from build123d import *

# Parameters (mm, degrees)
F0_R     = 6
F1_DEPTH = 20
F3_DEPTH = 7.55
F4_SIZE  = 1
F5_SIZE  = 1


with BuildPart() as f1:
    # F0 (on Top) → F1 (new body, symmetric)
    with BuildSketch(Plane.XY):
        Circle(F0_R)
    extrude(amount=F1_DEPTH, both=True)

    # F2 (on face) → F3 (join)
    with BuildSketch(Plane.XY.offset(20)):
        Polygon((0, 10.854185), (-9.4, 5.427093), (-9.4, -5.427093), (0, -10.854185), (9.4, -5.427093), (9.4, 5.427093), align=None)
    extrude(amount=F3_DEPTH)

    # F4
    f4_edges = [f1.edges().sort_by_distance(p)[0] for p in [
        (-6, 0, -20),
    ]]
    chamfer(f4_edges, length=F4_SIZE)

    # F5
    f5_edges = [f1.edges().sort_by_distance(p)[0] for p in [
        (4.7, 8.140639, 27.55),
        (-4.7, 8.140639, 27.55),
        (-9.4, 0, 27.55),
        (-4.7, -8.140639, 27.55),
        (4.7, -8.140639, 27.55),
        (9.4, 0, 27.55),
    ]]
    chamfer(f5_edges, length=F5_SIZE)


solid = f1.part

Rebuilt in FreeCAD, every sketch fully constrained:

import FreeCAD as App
import Part
import Sketcher
from FreeCAD import Vector
Q = App.Units.Quantity


def edges_at(feature, points):
    """Names of the edges that pass closest to the given points."""
    edges = feature.Shape.Edges
    near = lambda p: min(range(len(edges)), key=lambda i: edges[i].distToShape(Part.Vertex(*p))[0])
    return sorted({f"Edge{near(p) + 1}" for p in points})


def add_polygon(sketch, points):
    """Adds a closed chain of lines whose ends are joined by coincident constraints."""
    first, n = sketch.GeometryCount, len(points)
    for a, b in zip(points, points[1:] + points[:1]):
        sketch.addGeometry(Part.LineSegment(App.Vector(*a, 0), App.Vector(*b, 0)), False)
    for i in range(n):
        sketch.addConstraint(Sketcher.Constraint("Coincident", first + i, 2, first + (i + 1) % n, 1))

doc = App.newDocument("Part")
body = doc.addObject("PartDesign::Body", "Body")

sketch1 = doc.addObject("Sketcher::SketchObject", "Sketch")
body.addObject(sketch1)
sketch1.AttachmentSupport = (doc.XY_Plane, [""])
sketch1.MapMode = "FlatFace"
sketch1.addGeometry(Part.Circle(Vector(0, 0, 0), Vector(0, 0, 1), 6), False)
sketch1.addConstraint([
    Sketcher.Constraint("Coincident", 0, 3, -1, 1),
    Sketcher.Constraint("Diameter", 0, Q("12 mm")),
])
pad1 = doc.addObject("PartDesign::Pad", "Pad")
body.addObject(pad1)
pad1.Profile = sketch1
pad1.Length = 40
pad1.Midplane = True

sketch2 = doc.addObject("Sketcher::SketchObject", "Sketch001")
body.addObject(sketch2)
sketch2.AttachmentSupport = (doc.XY_Plane, [""])
sketch2.MapMode = "FlatFace"
sketch2.AttachmentOffset = App.Placement(Vector(0, 0, 20), App.Rotation())
add_polygon(sketch2, [(0, 11), (-9, 5), (-9, -5), (0, -11), (9, -5), (9, 5)])
sketch2.addConstraint([
    Sketcher.Constraint("Vertical", 1),
    Sketcher.Constraint("Vertical", 4),
    Sketcher.Constraint("Symmetric", 0, 2, 3, 2, -1, 1),
    Sketcher.Constraint("Symmetric", 2, 2, 5, 2, -1, 1),
    Sketcher.Constraint("PointOnObject", 2, 2, -2),
    Sketcher.Constraint("Parallel", 2, 5),
    Sketcher.Constraint("Horizontal", 1, 2, 3, 2),
    Sketcher.Constraint("Angle", 0, Q("-150.000002 deg")),
    Sketcher.Constraint("DistanceX", 0, 2, -1, 1, Q("9.4 mm")),
    Sketcher.Constraint("DistanceY", 1, 2, 1, 1, Q("10.854186 mm")),
])
pad2 = doc.addObject("PartDesign::Pad", "Pad001")
body.addObject(pad2)
pad2.Profile = sketch2
pad2.Length = 7.55
doc.recompute()

chamfer = doc.addObject("PartDesign::Chamfer", "Chamfer")
body.addObject(chamfer)
chamfer.Base = (pad2, edges_at(pad2, [(-6, 0, -20)]))
chamfer.Size = 1
doc.recompute()

chamfer2 = doc.addObject("PartDesign::Chamfer", "Chamfer001")
body.addObject(chamfer2)
chamfer2.Base = (chamfer, edges_at(chamfer, [
    (4.7, 8.141, 27.55),
    (-4.7, 8.141, 27.55),
    (-9.4, 0, 27.55),
    (-4.7, -8.141, 27.55),
    (4.7, -8.141, 27.55),
    (9.4, 0, 27.55),
]))
chamfer2.Size = 1

doc.recompute()
